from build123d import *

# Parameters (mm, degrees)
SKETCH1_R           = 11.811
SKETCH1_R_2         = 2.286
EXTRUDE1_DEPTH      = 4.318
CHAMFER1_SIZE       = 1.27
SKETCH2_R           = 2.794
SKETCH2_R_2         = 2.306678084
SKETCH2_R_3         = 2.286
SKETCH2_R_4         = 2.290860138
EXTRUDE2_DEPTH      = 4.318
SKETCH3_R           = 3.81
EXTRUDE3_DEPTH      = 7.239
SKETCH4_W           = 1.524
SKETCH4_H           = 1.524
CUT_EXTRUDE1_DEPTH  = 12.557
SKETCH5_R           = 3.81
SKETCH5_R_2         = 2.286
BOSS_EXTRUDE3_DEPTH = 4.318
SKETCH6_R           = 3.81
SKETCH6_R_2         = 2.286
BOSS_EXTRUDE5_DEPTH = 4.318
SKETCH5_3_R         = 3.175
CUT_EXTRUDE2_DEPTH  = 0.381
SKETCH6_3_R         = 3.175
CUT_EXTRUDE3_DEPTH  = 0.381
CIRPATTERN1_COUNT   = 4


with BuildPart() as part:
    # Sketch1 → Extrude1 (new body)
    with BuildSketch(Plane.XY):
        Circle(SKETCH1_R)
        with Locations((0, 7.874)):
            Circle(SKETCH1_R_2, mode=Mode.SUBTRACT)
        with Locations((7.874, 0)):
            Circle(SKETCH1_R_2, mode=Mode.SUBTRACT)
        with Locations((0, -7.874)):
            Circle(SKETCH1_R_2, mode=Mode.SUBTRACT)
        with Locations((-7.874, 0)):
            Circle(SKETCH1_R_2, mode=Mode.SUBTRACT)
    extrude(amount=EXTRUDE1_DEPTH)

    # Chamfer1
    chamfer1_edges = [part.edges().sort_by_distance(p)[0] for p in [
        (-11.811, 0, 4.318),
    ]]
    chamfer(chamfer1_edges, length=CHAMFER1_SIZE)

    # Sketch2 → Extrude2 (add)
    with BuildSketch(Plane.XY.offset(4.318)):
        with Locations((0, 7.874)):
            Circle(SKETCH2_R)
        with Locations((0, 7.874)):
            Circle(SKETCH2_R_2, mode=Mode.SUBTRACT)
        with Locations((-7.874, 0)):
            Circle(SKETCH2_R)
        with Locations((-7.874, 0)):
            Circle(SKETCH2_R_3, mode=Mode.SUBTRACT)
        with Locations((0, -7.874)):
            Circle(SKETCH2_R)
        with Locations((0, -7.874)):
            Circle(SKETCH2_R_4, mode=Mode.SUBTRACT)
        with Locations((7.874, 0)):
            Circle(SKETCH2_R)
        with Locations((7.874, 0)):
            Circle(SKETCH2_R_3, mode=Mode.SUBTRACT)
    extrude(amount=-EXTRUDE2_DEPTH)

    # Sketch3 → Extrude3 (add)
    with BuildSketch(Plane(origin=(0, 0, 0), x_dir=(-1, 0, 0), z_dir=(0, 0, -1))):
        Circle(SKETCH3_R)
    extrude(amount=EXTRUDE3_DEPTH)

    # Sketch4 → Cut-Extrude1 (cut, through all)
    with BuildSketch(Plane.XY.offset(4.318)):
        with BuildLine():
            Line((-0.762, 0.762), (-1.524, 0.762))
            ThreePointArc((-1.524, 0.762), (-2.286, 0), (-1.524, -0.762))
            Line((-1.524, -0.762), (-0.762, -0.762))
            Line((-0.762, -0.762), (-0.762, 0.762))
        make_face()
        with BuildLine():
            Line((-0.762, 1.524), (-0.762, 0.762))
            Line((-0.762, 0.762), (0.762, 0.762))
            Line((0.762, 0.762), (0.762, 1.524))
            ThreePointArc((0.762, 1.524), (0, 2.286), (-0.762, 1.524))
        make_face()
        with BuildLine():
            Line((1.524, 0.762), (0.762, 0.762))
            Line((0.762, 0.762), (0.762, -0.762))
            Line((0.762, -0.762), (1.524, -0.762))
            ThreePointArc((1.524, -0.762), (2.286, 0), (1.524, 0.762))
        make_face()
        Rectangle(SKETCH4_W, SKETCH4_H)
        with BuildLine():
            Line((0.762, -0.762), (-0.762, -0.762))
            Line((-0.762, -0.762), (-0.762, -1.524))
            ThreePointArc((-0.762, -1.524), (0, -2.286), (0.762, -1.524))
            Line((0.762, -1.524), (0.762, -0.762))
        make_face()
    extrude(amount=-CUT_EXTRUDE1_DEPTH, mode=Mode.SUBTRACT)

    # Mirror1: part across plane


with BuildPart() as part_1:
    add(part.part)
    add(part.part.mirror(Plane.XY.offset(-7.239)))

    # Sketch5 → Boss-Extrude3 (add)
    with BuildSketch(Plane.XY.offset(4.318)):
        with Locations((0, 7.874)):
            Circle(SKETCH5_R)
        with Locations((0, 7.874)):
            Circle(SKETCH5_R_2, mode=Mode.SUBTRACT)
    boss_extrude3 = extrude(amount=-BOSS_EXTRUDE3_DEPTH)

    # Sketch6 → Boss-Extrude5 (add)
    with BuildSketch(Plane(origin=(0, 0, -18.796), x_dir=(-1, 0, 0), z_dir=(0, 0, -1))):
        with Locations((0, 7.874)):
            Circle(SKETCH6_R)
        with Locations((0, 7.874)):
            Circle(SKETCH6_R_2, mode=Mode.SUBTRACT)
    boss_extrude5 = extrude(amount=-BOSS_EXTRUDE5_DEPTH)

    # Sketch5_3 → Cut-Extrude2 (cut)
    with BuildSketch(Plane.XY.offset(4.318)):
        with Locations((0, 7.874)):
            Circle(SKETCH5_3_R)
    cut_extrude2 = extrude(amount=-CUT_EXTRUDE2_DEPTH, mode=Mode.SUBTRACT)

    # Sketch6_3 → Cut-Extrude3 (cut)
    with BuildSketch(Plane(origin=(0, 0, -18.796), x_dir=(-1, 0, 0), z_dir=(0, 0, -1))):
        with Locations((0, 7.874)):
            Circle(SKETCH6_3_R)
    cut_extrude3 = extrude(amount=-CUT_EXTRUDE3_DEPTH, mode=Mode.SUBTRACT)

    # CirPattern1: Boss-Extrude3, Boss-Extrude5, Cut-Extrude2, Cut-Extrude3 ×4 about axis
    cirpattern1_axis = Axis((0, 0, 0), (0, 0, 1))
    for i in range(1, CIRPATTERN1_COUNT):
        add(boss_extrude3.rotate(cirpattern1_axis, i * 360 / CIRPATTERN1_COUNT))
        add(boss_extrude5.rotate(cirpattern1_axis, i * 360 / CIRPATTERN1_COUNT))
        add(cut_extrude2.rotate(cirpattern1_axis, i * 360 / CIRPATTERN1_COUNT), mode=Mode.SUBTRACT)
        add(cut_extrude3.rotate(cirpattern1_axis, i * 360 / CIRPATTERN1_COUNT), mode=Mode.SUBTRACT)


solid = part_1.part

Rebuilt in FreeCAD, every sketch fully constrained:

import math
import FreeCAD as App
import Part
import Sketcher
Q = App.Units.Quantity


def edges_at(feature, points):
    """Names of the edges that pass closest to the given points."""
    edges = feature.Shape.Edges
    near = lambda p: min(range(len(edges)), key=lambda i: edges[i].distToShape(Part.Vertex(*p))[0])
    return sorted({f"Edge{near(p) + 1}" for p in points})

doc = App.newDocument("Part")
body = doc.addObject("PartDesign::Body", "Body")

# Sketch on XY plane
sketch1 = body.newObject("Sketcher::SketchObject", "Sketch")
sketch1.AttachmentSupport = (doc.getObject("XY_Plane"), [""])
sketch1.MapMode = "FlatFace"
sketch1.addGeometry([
    Part.Circle(App.Vector(0, 0, 0), App.Vector(0, 0, 1), 11.811),  # 0
    Part.Circle(App.Vector(0, -7.874, 0), App.Vector(0, 0, 1), 2.286),  # 1
    Part.Circle(App.Vector(-7.874, 0, 0), App.Vector(0, 0, 1), 2.286),  # 2
    Part.Circle(App.Vector(7.874, 0, 0), App.Vector(0, 0, 1), 2.286),  # 3
    Part.Circle(App.Vector(0, 7.874, 0), App.Vector(0, 0, 1), 2.286),  # 4
], False)
sketch1.addConstraint([
    Sketcher.Constraint("Coincident", 0, 3, -1, 1),
    Sketcher.Constraint("Equal", 1, 2),
    Sketcher.Constraint("Equal", 2, 3),
    Sketcher.Constraint("Equal", 3, 4),
    Sketcher.Constraint("Symmetric", 2, 3, 3, 3, -1, 1),
    Sketcher.Constraint("Symmetric", 1, 3, 4, 3, -1, 1),
    Sketcher.Constraint("PointOnObject", 1, 3, -2),
    Sketcher.Constraint("PointOnObject", 2, 3, -1),
    Sketcher.Constraint("Diameter", 0, Q("0.93 in")),
    Sketcher.Constraint("Diameter", 1, Q("0.18 in")),
    Sketcher.Constraint("DistanceY", 1, 3, -1, 1, Q("0.31 in")),
    Sketcher.Constraint("DistanceX", 2, 3, -1, 1, Q("0.31 in")),
])
pad1 = body.newObject("PartDesign::Pad", "Pad")
pad1.Profile = sketch1
pad1.Length = Q("0.17 in")
doc.recompute()

chamfer = body.newObject("PartDesign::Chamfer", "Chamfer")
chamfer.Base = (pad1, edges_at(pad1, [(-11.811, 0, 4.318)]))
chamfer.Size = Q("0.05 in")

# Sketch on XY plane
sketch2 = body.newObject("Sketcher::SketchObject", "Sketch001")
sketch2.AttachmentSupport = (doc.getObject("XY_Plane"), [""])
sketch2.MapMode = "FlatFace"
sketch2.AttachmentOffset = App.Placement(App.Vector(0, 0, 0.17 * 25.4), App.Rotation())
sketch2.addGeometry([
    Part.Circle(App.Vector(0, 7.874, 0), App.Vector(0, 0, 1), 2.794),  # 0
    Part.Circle(App.Vector(0, 7.874, 0), App.Vector(0, 0, 1), 2.306678),  # 1
    Part.Circle(App.Vector(-7.874, 0, 0), App.Vector(0, 0, 1), 2.794),  # 2
    Part.Circle(App.Vector(-7.874, 0, 0), App.Vector(0, 0, 1), 2.286),  # 3
    Part.Circle(App.Vector(0, -7.874, 0), App.Vector(0, 0, 1), 2.794),  # 4
    Part.Circle(App.Vector(0, -7.874, 0), App.Vector(0, 0, 1), 2.29086),  # 5
    Part.Circle(App.Vector(7.874, 0, 0), App.Vector(0, 0, 1), 2.794),  # 6
    Part.Circle(App.Vector(7.874, 0, 0), App.Vector(0, 0, 1), 2.286),  # 7
], False)
sketch2.addConstraint([
    Sketcher.Constraint("Coincident", 1, 3, 0, 3),
    Sketcher.Constraint("Coincident", 3, 3, 2, 3),
    Sketcher.Constraint("Coincident", 5, 3, 4, 3),
    Sketcher.Constraint("Coincident", 7, 3, 6, 3),
    Sketcher.Constraint("Equal", 0, 2),
    Sketcher.Constraint("Equal", 2, 4),
    Sketcher.Constraint("Equal", 4, 6),
    Sketcher.Constraint("Equal", 3, 7),
    Sketcher.Constraint("Symmetric", 0, 3, 4, 3, -1, 1),
    Sketcher.Constraint("Symmetric", 2, 3, 6, 3, -1, 1),
    Sketcher.Constraint("PointOnObject", 0, 3, -2),
    Sketcher.Constraint("PointOnObject", 2, 3, -1),
    Sketcher.Constraint("Diameter", 0, Q("0.22 in")),
    Sketcher.Constraint("Diameter", 3, Q("0.18 in")),
    Sketcher.Constraint("DistanceY", -1, 1, 0, 3, Q("0.31 in")),
    Sketcher.Constraint("DistanceX", 2, 3, -1, 1, Q("0.31 in")),
    Sketcher.Constraint("Diameter", 5, Q("4.58172 mm")),
    Sketcher.Constraint("Diameter", 1, Q("4.613356 mm")),
])
pad2 = body.newObject("PartDesign::Pad", "Pad001")
pad2.Profile = sketch2
pad2.Length = Q("0.17 in")
pad2.Reversed = True

# Sketch on XY plane
sketch3 = body.newObject("Sketcher::SketchObject", "Sketch002")
sketch3.AttachmentSupport = (doc.getObject("XY_Plane"), [""])
sketch3.MapMode = "FlatFace"
sketch3.addGeometry(Part.Circle(App.Vector(0, 0, 0), App.Vector(0, 0, 1), 3.81), False)
sketch3.addConstraint([
    Sketcher.Constraint("Coincident", 0, 3, -1, 1),
    Sketcher.Constraint("Diameter", 0, Q("0.3 in")),
])
pad3 = body.newObject("PartDesign::Pad", "Pad002")
pad3.Profile = sketch3
pad3.Length = Q("0.285 in")
pad3.Reversed = True

# Sketch on XY plane
sketch4 = body.newObject("Sketcher::SketchObject", "Sketch003")
sketch4.AttachmentSupport = (doc.getObject("XY_Plane"), [""])
sketch4.MapMode = "FlatFace"
sketch4.AttachmentOffset = App.Placement(App.Vector(0, 0, 0.17 * 25.4), App.Rotation())
sketch4.addGeometry([
    Part.LineSegment(App.Vector(-0.762, 0.762, 0), App.Vector(-1.524, 0.762, 0)),  # 0
    Part.ArcOfCircle(Part.Circle(App.Vector(-1.524, 0, 0), App.Vector(0, 0, 1), 0.762), math.radians(90), math.radians(270)),  # 1
    Part.LineSegment(App.Vector(-1.524, -0.762, 0), App.Vector(-0.762, -0.762, 0)),  # 2
    Part.LineSegment(App.Vector(-0.762, -0.762, 0), App.Vector(-0.762, -1.524, 0)),  # 3
    Part.ArcOfCircle(Part.Circle(App.Vector(0, -1.524, 0), App.Vector(0, 0, 1), 0.762), math.radians(180), math.radians(360)),  # 4
    Part.LineSegment(App.Vector(0.762, -1.524, 0), App.Vector(0.762, -0.762, 0)),  # 5
    Part.LineSegment(App.Vector(0.762, -0.762, 0), App.Vector(1.524, -0.762, 0)),  # 6
    Part.ArcOfCircle(Part.Circle(App.Vector(1.524, 0, 0), App.Vector(0, 0, 1), 0.762), math.radians(-90), math.radians(90)),  # 7
    Part.LineSegment(App.Vector(1.524, 0.762, 0), App.Vector(0.762, 0.762, 0)),  # 8
    Part.LineSegment(App.Vector(0.762, 0.762, 0), App.Vector(0.762, 1.524, 0)),  # 9
    Part.ArcOfCircle(Part.Circle(App.Vector(0, 1.524, 0), App.Vector(0, 0, 1), 0.762), math.radians(0), math.radians(180)),  # 10
    Part.LineSegment(App.Vector(-0.762, 1.524, 0), App.Vector(-0.762, 0.762, 0)),  # 11
], False)
sketch4.addConstraint([
    Sketcher.Constraint("Tangent", 0, 2, 1, 1),
    Sketcher.Constraint("Tangent", 1, 2, 2, 1),
    Sketcher.Constraint("Coincident", 2, 2, 3, 1),
    Sketcher.Constraint("Tangent", 3, 2, 4, 1),
    Sketcher.Constraint("Tangent", 4, 2, 5, 1),
    Sketcher.Constraint("Coincident", 5, 2, 6, 1),
    Sketcher.Constraint("Tangent", 6, 2, 7, 1),
    Sketcher.Constraint("Tangent", 7, 2, 8, 1),
    Sketcher.Constraint("Coincident", 8, 2, 9, 1),
    Sketcher.Constraint("Tangent", 9, 2, 10, 1),
    Sketcher.Constraint("Tangent", 10, 2, 11, 1),
    Sketcher.Constraint("Coincident", 11, 2, 0, 1),
    Sketcher.Constraint("Horizontal", 0),
    Sketcher.Constraint("Horizontal", 2),
    Sketcher.Constraint("Vertical", 3),
    Sketcher.Constraint("Vertical", 5),
    Sketcher.Constraint("Horizontal", 6),
    Sketcher.Constraint("Horizontal", 8),
    Sketcher.Constraint("Vertical", 9),
    Sketcher.Constraint("Vertical", 11),
    Sketcher.Constraint("Equal", 1, 4),
    Sketcher.Constraint("Equal", 4, 7),
    Sketcher.Constraint("Equal", 7, 10),
    Sketcher.Constraint("Symmetric", 1, 3, 7, 3, -1, 1),
    Sketcher.Constraint("Symmetric", 4, 3, 10, 3, -1, 1),
    Sketcher.Constraint("Symmetric", 2, 2, 5, 2, -2),
    Sketcher.Constraint("Equal", 8, 3),
    Sketcher.Constraint("Radius", 1, Q("0.03 in")),
    Sketcher.Constraint("DistanceX", 0, 2, 0, 1, Q("0.03 in")),
])
pocket1 = body.newObject("PartDesign::Pocket", "Pocket")
pocket1.Profile = sketch4
pocket1.Type = "ThroughAll"
body2 = doc.addObject("PartDesign::Body", "Body001")
doc.recompute()

body2.BaseFeature = body
doc.recompute()

mirroring = doc.addObject("Part::Mirroring", "Mirroring")
mirroring.Source = body
mirroring.Base = App.Vector(0, 0, -7.239)
mirroring.Normal = App.Vector(0, 0, 1)
body3 = doc.addObject("PartDesign::Body", "Body002")
body3.BaseFeature = mirroring
boolean = body2.newObject("PartDesign::Boolean", "Boolean")
boolean.Type = "Fuse"
boolean.addObjects([body3])
doc.recompute()

# Sketch on XY plane
sketch5 = body2.newObject("Sketcher::SketchObject", "Sketch004")
sketch5.AttachmentSupport = (doc.getObject("XY_Plane001"), [""])
sketch5.MapMode = "FlatFace"
sketch5.AttachmentOffset = App.Placement(App.Vector(0, 0, 0.17 * 25.4), App.Rotation())
sketch5.addGeometry([
    Part.Circle(App.Vector(0, 7.874, 0), App.Vector(0, 0, 1), 3.81),
    Part.Circle(App.Vector(0, 7.874, 0), App.Vector(0, 0, 1), 2.286),
], False)
sketch5.addConstraint([
    Sketcher.Constraint("Coincident", 1, 3, 0, 3),
    Sketcher.Constraint("PointOnObject", 0, 3, -2),
    Sketcher.Constraint("Diameter", 0, Q("0.3 in")),
    Sketcher.Constraint("Diameter", 1, Q("0.18 in")),
    Sketcher.Constraint("DistanceY", -1, 1, 0, 3, Q("0.31 in")),
])
pad4 = body2.newObject("PartDesign::Pad", "Pad003")
pad4.Profile = sketch5
pad4.Length = Q("0.17 in")
pad4.Reversed = True

# Sketch on XY plane
sketch6 = body2.newObject("Sketcher::SketchObject", "Sketch005")
sketch6.AttachmentSupport = (doc.getObject("XY_Plane001"), [""])
sketch6.MapMode = "FlatFace"
sketch6.AttachmentOffset = App.Placement(App.Vector(0, 0, -0.74 * 25.4), App.Rotation())
sketch6.addGeometry([
    Part.Circle(App.Vector(0, 7.874, 0), App.Vector(0, 0, 1), 3.81),
    Part.Circle(App.Vector(0, 7.874, 0), App.Vector(0, 0, 1), 2.286),
], False)
sketch6.addConstraint([
    Sketcher.Constraint("Coincident", 1, 3, 0, 3),
    Sketcher.Constraint("PointOnObject", 0, 3, -2),
    Sketcher.Constraint("Diameter", 0, Q("0.3 in")),
    Sketcher.Constraint("Diameter", 1, Q("0.18 in")),
    Sketcher.Constraint("DistanceY", -1, 1, 0, 3, Q("0.31 in")),
])
pad5 = body2.newObject("PartDesign::Pad", "Pad004")
pad5.Profile = sketch6
pad5.Length = Q("0.17 in")

# Sketch on XY plane
sketch7 = body2.newObject("Sketcher::SketchObject", "Sketch006")
sketch7.AttachmentSupport = (doc.getObject("XY_Plane001"), [""])
sketch7.MapMode = "FlatFace"
sketch7.AttachmentOffset = App.Placement(App.Vector(0, 0, 0.17 * 25.4), App.Rotation())
sketch7.addGeometry(Part.Circle(App.Vector(0, 7.874, 0), App.Vector(0, 0, 1), 3.175), False)
sketch7.addConstraint([
    Sketcher.Constraint("PointOnObject", 0, 3, -2),
    Sketcher.Constraint("Diameter", 0, Q("0.25 in")),
    Sketcher.Constraint("DistanceY", -1, 1, 0, 3, Q("0.31 in")),
])
pocket2 = body2.newObject("PartDesign::Pocket", "Pocket001")
pocket2.Profile = sketch7
pocket2.Length = Q("0.015 in")

# Sketch on XY plane
sketch8 = body2.newObject("Sketcher::SketchObject", "Sketch007")
sketch8.AttachmentSupport = (doc.getObject("XY_Plane001"), [""])
sketch8.MapMode = "FlatFace"
sketch8.AttachmentOffset = App.Placement(App.Vector(0, 0, -0.74 * 25.4), App.Rotation())
sketch8.addGeometry(Part.Circle(App.Vector(0, 7.874, 0), App.Vector(0, 0, 1), 3.175), False)
sketch8.addConstraint([
    Sketcher.Constraint("PointOnObject", 0, 3, -2),
    Sketcher.Constraint("Diameter", 0, Q("0.25 in")),
    Sketcher.Constraint("DistanceY", -1, 1, 0, 3, Q("0.31 in")),
])
pocket3 = body2.newObject("PartDesign::Pocket", "Pocket002")
pocket3.Profile = sketch8
pocket3.Length = Q("0.015 in")
pocket3.Reversed = True
doc.recompute()

polarpattern = body2.newObject("PartDesign::PolarPattern", "PolarPattern")
polarpattern.Originals = [pad4, pad5, pocket2, pocket3]
polarpattern.Axis = (doc.getObject("Z_Axis001"), [""])
polarpattern.Angle = 360
polarpattern.Occurrences = 4
body2.Tip = polarpattern
mirroring.Visibility = False

doc.recompute()
